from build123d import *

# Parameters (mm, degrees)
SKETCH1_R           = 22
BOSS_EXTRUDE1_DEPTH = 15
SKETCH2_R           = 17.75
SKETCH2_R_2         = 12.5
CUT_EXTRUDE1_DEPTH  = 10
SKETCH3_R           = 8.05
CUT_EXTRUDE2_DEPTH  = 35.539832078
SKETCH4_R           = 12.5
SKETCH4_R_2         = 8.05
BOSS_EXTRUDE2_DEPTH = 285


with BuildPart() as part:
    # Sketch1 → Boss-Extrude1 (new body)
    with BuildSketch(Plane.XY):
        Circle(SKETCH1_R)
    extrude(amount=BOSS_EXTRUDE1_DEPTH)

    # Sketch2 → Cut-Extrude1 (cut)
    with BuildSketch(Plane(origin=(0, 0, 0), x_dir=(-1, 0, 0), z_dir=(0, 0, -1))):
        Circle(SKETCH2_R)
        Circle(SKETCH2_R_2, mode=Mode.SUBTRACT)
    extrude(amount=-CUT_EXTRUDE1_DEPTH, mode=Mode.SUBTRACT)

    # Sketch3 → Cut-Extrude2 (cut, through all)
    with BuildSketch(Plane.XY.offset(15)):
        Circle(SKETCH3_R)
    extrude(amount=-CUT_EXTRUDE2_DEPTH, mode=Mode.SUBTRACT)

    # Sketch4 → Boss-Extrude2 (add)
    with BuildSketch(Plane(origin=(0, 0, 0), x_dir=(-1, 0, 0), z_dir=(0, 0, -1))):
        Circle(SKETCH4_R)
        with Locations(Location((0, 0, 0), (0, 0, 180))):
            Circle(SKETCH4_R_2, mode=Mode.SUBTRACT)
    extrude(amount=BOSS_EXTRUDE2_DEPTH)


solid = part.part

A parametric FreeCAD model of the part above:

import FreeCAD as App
import Part
import Sketcher

V = App.Vector
Q = App.Units.Quantity

doc = App.newDocument("Part")
body = doc.addObject("PartDesign::Body", "Body")

# Sketch on XY plane
sketch1 = body.newObject("Sketcher::SketchObject", "Sketch")
sketch1.AttachmentSupport = (doc.getObject("XY_Plane"), [""])
sketch1.MapMode = "FlatFace"
sketch1.addGeometry(Part.Circle(V(0, 0, 0), V(0, 0, 1), 22), False)
sketch1.addConstraint(Sketcher.Constraint("Coincident", 0, 3, -1, 1))
sketch1.addConstraint(Sketcher.Constraint("Diameter", 0, Q("44 mm")))
pad1 = body.newObject("PartDesign::Pad", "Pad")
pad1.Profile = sketch1
pad1.Length = 15

# Sketch on XY plane
sketch2 = body.newObject("Sketcher::SketchObject", "Sketch001")
sketch2.AttachmentSupport = (doc.getObject("XY_Plane"), [""])
sketch2.MapMode = "FlatFace"
sketch2.addGeometry(Part.Circle(V(0, 0, 0), V(0, 0, 1), 18), False)
sketch2.addGeometry(Part.Circle(V(0, 0, 0), V(0, 0, 1), 12), False)
sketch2.addConstraint(Sketcher.Constraint("Coincident", 0, 3, -1, 1))
sketch2.addConstraint(Sketcher.Constraint("Coincident", 1, 3, -1, 1))
sketch2.addConstraint(Sketcher.Constraint("Diameter", 1, Q("25 mm")))
sketch2.addConstraint(Sketcher.Constraint("Diameter", 0, Q("35.5 mm")))
pocket1 = body.newObject("PartDesign::Pocket", "Pocket")
pocket1.Profile = sketch2
pocket1.Length = 10
pocket1.Reversed = True

# Sketch on XY plane
sketch3 = body.newObject("Sketcher::SketchObject", "Sketch002")
sketch3.AttachmentSupport = (doc.getObject("XY_Plane"), [""])
sketch3.MapMode = "FlatFace"
sketch3.AttachmentOffset = App.Placement(V(0, 0, 15), App.Rotation())
sketch3.addGeometry(Part.Circle(V(0, 0, 0), V(0, 0, 1), 8), False)
sketch3.addConstraint(Sketcher.Constraint("Coincident", 0, 3, -1, 1))
sketch3.addConstraint(Sketcher.Constraint("Diameter", 0, Q("16.1 mm")))
pocket2 = body.newObject("PartDesign::Pocket", "Pocket001")
pocket2.Profile = sketch3
pocket2.Type = "ThroughAll"

# Sketch on XY plane
sketch4 = body.newObject("Sketcher::SketchObject", "Sketch003")
sketch4.AttachmentSupport = (doc.getObject("XY_Plane"), [""])
sketch4.MapMode = "FlatFace"
sketch4.addGeometry(Part.Circle(V(0, 0, 0), V(0, 0, 1), 12), False)
sketch4.addGeometry(Part.Circle(V(0, 0, 0), V(0, 0, 1), 8), False)
sketch4.addConstraint(Sketcher.Constraint("Coincident", 0, 3, -1, 1))
sketch4.addConstraint(Sketcher.Constraint("Coincident", 1, 3, -1, 1))
sketch4.addConstraint(Sketcher.Constraint("Diameter", 0, Q("25 mm")))
sketch4.addConstraint(Sketcher.Constraint("Diameter", 1, Q("16.1 mm")))
pad2 = body.newObject("PartDesign::Pad", "Pad001")
pad2.Profile = sketch4
pad2.Length = 285
pad2.Reversed = True

doc.recompute()
